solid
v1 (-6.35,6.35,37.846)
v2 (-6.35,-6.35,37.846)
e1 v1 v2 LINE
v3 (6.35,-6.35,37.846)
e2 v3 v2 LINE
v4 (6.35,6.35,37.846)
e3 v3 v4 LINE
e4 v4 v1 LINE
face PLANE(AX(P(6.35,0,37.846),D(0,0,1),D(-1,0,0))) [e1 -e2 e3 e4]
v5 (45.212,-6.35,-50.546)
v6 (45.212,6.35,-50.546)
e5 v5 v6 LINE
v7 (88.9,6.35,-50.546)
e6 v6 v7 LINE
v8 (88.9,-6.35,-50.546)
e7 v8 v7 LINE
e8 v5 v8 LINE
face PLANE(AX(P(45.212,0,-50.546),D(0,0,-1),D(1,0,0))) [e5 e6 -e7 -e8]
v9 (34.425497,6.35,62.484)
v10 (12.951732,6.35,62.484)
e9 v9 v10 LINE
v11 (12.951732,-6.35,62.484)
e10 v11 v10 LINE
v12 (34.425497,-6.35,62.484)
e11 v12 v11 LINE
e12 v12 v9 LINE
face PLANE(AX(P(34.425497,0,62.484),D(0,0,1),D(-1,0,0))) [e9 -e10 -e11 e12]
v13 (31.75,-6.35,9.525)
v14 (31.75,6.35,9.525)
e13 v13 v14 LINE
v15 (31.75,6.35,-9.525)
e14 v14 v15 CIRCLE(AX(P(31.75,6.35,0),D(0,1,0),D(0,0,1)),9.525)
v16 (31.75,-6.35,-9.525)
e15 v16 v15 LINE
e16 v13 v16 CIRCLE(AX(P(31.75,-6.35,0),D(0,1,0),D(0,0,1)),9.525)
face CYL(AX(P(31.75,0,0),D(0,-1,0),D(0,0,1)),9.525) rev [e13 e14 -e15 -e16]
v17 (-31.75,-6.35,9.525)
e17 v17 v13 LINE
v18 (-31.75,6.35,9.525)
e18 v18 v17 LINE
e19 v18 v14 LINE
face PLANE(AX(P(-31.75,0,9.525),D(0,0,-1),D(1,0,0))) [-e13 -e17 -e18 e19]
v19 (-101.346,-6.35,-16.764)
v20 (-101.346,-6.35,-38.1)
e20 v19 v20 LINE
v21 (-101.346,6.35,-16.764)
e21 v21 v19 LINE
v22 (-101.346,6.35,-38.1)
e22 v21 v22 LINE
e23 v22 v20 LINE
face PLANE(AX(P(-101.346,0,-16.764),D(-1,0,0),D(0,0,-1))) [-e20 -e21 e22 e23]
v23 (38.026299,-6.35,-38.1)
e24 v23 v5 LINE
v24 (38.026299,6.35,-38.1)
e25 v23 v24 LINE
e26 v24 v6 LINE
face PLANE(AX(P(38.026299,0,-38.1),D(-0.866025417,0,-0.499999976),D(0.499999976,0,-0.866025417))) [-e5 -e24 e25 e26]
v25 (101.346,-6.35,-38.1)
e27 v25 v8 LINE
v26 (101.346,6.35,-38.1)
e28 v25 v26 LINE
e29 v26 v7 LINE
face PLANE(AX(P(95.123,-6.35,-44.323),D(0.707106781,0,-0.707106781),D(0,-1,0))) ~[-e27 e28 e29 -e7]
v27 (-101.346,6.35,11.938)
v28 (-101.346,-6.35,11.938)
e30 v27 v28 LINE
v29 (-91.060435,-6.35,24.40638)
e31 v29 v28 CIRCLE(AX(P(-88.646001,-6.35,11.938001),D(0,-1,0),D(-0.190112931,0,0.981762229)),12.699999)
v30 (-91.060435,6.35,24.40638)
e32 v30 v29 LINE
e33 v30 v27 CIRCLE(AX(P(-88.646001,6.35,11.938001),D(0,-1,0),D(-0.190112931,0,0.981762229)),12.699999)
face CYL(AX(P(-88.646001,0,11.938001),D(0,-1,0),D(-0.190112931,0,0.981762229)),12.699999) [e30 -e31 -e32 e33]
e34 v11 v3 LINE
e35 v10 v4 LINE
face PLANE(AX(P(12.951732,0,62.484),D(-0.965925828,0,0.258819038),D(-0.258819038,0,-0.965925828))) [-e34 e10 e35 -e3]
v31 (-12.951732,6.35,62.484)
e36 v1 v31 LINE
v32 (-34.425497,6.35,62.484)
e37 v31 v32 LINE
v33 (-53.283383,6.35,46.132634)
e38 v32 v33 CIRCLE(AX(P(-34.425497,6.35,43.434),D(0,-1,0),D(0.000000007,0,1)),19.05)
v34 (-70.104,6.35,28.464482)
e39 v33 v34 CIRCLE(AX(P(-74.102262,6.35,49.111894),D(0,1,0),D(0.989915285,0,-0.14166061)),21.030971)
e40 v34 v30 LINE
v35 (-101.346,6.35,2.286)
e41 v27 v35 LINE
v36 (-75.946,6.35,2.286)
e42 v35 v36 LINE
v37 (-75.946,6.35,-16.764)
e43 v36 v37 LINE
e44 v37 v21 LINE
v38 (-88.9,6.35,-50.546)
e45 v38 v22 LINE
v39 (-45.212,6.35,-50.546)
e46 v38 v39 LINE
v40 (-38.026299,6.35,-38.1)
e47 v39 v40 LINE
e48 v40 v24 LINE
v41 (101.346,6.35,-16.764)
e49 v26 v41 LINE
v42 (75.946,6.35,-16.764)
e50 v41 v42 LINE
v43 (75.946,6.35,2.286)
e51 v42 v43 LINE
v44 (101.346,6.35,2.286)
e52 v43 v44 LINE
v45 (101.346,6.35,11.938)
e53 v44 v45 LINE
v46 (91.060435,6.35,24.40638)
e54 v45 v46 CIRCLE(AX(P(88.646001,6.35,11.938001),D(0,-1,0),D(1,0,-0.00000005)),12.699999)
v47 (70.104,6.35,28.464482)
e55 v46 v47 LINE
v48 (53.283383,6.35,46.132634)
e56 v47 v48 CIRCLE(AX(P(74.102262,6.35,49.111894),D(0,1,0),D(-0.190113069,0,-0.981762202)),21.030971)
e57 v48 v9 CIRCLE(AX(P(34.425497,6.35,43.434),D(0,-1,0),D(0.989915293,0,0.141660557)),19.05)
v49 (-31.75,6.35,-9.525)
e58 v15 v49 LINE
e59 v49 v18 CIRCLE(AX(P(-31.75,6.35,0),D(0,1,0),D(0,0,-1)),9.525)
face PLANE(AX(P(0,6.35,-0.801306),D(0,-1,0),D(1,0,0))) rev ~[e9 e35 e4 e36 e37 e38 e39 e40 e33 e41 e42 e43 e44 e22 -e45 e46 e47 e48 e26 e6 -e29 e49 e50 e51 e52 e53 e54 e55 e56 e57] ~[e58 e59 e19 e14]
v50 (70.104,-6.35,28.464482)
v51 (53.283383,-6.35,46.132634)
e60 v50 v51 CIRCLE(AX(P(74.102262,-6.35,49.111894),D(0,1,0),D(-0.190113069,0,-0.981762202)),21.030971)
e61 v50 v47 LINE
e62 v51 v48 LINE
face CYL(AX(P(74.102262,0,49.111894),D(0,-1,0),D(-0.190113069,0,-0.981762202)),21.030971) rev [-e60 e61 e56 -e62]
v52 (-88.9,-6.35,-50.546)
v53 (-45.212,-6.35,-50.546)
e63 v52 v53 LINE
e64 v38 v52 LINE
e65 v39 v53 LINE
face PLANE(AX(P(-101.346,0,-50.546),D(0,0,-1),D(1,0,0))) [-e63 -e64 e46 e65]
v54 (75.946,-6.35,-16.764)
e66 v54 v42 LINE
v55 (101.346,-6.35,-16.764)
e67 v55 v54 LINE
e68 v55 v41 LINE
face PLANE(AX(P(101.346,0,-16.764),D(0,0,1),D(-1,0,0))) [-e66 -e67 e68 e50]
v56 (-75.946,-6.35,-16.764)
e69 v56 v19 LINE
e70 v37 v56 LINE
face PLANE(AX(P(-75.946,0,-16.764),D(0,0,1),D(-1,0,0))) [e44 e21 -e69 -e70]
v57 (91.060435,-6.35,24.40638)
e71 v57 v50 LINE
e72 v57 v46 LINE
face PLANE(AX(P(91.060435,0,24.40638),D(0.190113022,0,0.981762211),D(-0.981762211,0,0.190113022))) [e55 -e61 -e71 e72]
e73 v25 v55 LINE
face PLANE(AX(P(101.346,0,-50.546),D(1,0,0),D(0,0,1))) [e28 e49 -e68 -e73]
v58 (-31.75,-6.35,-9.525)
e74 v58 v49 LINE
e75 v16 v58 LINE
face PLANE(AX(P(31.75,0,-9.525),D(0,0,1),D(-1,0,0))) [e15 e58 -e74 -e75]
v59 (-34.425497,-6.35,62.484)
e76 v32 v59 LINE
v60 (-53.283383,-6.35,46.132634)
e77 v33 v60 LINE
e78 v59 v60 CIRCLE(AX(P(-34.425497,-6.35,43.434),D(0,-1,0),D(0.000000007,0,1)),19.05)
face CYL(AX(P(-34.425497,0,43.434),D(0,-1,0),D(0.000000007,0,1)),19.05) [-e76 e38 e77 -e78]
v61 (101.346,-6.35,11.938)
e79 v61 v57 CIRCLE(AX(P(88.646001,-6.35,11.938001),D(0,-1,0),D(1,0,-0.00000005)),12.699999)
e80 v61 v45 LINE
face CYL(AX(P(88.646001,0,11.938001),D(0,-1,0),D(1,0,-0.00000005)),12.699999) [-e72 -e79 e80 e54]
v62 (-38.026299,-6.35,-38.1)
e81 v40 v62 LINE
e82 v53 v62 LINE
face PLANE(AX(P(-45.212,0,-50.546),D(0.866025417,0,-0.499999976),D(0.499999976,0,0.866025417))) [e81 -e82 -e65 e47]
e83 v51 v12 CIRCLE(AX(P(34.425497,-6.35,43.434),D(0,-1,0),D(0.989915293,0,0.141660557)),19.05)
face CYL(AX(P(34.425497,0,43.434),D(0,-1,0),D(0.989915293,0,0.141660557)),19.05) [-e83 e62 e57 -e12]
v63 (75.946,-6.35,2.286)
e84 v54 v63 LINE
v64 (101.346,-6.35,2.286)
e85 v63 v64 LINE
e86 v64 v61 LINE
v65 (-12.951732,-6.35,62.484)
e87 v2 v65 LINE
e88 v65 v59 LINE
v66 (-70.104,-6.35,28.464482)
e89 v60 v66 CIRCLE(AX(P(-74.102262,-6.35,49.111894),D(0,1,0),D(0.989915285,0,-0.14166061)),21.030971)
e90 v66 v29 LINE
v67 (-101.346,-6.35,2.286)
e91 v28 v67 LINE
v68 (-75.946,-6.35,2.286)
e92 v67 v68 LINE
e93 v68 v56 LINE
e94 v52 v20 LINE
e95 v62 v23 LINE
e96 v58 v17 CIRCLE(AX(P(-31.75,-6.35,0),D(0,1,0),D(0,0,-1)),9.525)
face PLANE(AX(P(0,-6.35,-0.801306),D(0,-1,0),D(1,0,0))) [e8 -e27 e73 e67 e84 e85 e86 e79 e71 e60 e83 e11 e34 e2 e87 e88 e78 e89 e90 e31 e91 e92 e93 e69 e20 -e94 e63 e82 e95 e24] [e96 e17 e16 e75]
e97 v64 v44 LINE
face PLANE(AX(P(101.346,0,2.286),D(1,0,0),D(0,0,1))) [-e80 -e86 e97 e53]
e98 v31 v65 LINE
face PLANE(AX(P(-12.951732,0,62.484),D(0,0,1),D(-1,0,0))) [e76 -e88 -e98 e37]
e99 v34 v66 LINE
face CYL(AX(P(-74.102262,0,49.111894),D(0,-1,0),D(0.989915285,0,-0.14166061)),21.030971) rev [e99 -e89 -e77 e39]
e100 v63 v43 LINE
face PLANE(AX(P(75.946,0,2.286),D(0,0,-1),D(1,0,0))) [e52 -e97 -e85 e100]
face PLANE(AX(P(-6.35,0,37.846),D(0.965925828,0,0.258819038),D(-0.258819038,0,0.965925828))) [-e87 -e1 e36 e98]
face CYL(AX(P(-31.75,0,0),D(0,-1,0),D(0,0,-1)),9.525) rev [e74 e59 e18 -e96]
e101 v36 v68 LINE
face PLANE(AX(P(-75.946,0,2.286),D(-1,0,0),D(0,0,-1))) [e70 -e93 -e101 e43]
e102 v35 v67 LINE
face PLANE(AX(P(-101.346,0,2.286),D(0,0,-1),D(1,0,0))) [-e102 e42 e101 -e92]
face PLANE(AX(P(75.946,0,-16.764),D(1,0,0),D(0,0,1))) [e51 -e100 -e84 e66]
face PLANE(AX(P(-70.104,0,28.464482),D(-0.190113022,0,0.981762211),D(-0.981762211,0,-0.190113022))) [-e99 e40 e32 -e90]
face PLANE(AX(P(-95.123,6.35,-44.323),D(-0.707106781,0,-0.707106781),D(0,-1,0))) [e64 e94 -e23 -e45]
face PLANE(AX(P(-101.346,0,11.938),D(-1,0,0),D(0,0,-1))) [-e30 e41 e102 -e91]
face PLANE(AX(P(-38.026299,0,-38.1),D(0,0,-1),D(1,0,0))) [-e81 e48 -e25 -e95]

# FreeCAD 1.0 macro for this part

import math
import FreeCAD as App
import Part
import Sketcher
Q = App.Units.Quantity


def edges_at(feature, points):
    """Names of the edges that pass closest to the given points."""
    edges = feature.Shape.Edges
    near = lambda p: min(range(len(edges)), key=lambda i: edges[i].distToShape(Part.Vertex(*p))[0])
    return sorted({f"Edge{near(p) + 1}" for p in points})

doc = App.newDocument("Part")
body = doc.addObject("PartDesign::Body", "Body")

# Sketch on XZ plane
sketch1 = body.newObject("Sketcher::SketchObject", "Sketch")
sketch1.AttachmentSupport = (doc.getObject("XZ_Plane"), [""])
sketch1.MapMode = "FlatFace"
sketch1.addGeometry(Part.LineSegment(App.Vector(6.35, 37.846, 0), App.Vector(-6.35, 37.846, 0)), False)
sketch1.addGeometry(Part.LineSegment(App.Vector(-6.35, 37.846, 0), App.Vector(-12.951732, 62.484, 0)), False)
sketch1.addGeometry(Part.LineSegment(App.Vector(-12.951732, 62.484, 0), App.Vector(-34.425497, 62.484, 0)), False)
sketch1.addGeometry(Part.ArcOfCircle(Part.Circle(App.Vector(-34.425497, 43.434, 0), App.Vector(0, 0, 1), 19.05), math.radians(90), math.radians(171.856053)), False)
sketch1.addGeometry(Part.ArcOfCircle(Part.Circle(App.Vector(-74.102262, 49.111894, 0), App.Vector(0, 0, 1), 21.030971), math.radians(-79.040617), math.radians(-8.14395)), False)
sketch1.addGeometry(Part.LineSegment(App.Vector(-70.104, 28.464482, 0), App.Vector(-91.060435, 24.40638, 0)), False)
sketch1.addGeometry(Part.ArcOfCircle(Part.Circle(App.Vector(-88.646001, 11.938001, 0), App.Vector(0, 0, 1), 12.699999), math.radians(100.959375), math.radians(180.000003)), False)
sketch1.addGeometry(Part.LineSegment(App.Vector(-101.346, 11.938, 0), App.Vector(-101.346, 2.286, 0)), False)
sketch1.addGeometry(Part.LineSegment(App.Vector(-101.346, 2.286, 0), App.Vector(-75.946, 2.286, 0)), False)
sketch1.addGeometry(Part.LineSegment(App.Vector(-75.946, 2.286, 0), App.Vector(-75.946, -16.764, 0)), False)
sketch1.addGeometry(Part.LineSegment(App.Vector(-75.946, -16.764, 0), App.Vector(-101.346, -16.764, 0)), False)
sketch1.addGeometry(Part.LineSegment(App.Vector(-101.346, -16.764, 0), App.Vector(-101.346, -50.546, 0)), False)
sketch1.addGeometry(Part.LineSegment(App.Vector(-101.346, -50.546, 0), App.Vector(-45.212, -50.546, 0)), False)
sketch1.addGeometry(Part.LineSegment(App.Vector(-45.212, -50.546, 0), App.Vector(-38.026299, -38.1, 0)), False)
sketch1.addGeometry(Part.LineSegment(App.Vector(-38.026299, -38.1, 0), App.Vector(38.026299, -38.1, 0)), False)
sketch1.addGeometry(Part.LineSegment(App.Vector(38.026299, -38.1, 0), App.Vector(45.212, -50.546, 0)), False)
sketch1.addGeometry(Part.LineSegment(App.Vector(45.212, -50.546, 0), App.Vector(101.346, -50.546, 0)), False)
sketch1.addGeometry(Part.LineSegment(App.Vector(101.346, -50.546, 0), App.Vector(101.346, -16.764, 0)), False)
sketch1.addGeometry(Part.LineSegment(App.Vector(101.346, -16.764, 0), App.Vector(75.946, -16.764, 0)), False)
sketch1.addGeometry(Part.LineSegment(App.Vector(75.946, -16.764, 0), App.Vector(75.946, 2.286, 0)), False)
sketch1.addGeometry(Part.LineSegment(App.Vector(75.946, 2.286, 0), App.Vector(101.346, 2.286, 0)), False)
sketch1.addGeometry(Part.LineSegment(App.Vector(101.346, 2.286, 0), App.Vector(101.346, 11.938, 0)), False)
sketch1.addGeometry(Part.ArcOfCircle(Part.Circle(App.Vector(88.646001, 11.938001, 0), App.Vector(0, 0, 1), 12.699999), math.radians(-0.000003), math.radians(79.040625)), False)
sketch1.addGeometry(Part.LineSegment(App.Vector(91.060435, 24.40638, 0), App.Vector(70.104, 28.464482, 0)), False)
sketch1.addGeometry(Part.ArcOfCircle(Part.Circle(App.Vector(74.102262, 49.111894, 0), App.Vector(0, 0, 1), 21.030971), math.radians(-171.85605), math.radians(-100.959383)), False)
sketch1.addGeometry(Part.ArcOfCircle(Part.Circle(App.Vector(34.425497, 43.434, 0), App.Vector(0, 0, 1), 19.05), math.radians(8.143947), math.radians(90)), False)
sketch1.addGeometry(Part.LineSegment(App.Vector(34.425497, 62.484, 0), App.Vector(12.951732, 62.484, 0)), False)
sketch1.addGeometry(Part.LineSegment(App.Vector(12.951732, 62.484, 0), App.Vector(6.35, 37.846, 0)), False)
sketch1.addGeometry(Part.ArcOfCircle(Part.Circle(App.Vector(-31.75, 0, 0), App.Vector(0, 0, 1), 9.525), math.radians(90), math.radians(270)), False)
sketch1.addGeometry(Part.LineSegment(App.Vector(-31.75, 9.525, 0), App.Vector(31.75, 9.525, 0)), False)
sketch1.addGeometry(Part.ArcOfCircle(Part.Circle(App.Vector(31.75, 0, 0), App.Vector(0, 0, 1), 9.525), math.radians(-90), math.radians(90)), False)
sketch1.addGeometry(Part.LineSegment(App.Vector(31.75, -9.525, 0), App.Vector(-31.75, -9.525, 0)), False)
sketch1.addConstraint(Sketcher.Constraint("Coincident", 0, 2, 1, 1))
sketch1.addConstraint(Sketcher.Constraint("Coincident", 1, 2, 2, 1))
sketch1.addConstraint(Sketcher.Constraint("Tangent", 2, 2, 3, 1))
sketch1.addConstraint(Sketcher.Constraint("Tangent", 3, 2, 4, 2))
sketch1.addConstraint(Sketcher.Constraint("Tangent", 4, 1, 5, 1))
sketch1.addConstraint(Sketcher.Constraint("Tangent", 5, 2, 6, 1))
sketch1.addConstraint(Sketcher.Constraint("Tangent", 6, 2, 7, 1))
sketch1.addConstraint(Sketcher.Constraint("Coincident", 7, 2, 8, 1))
sketch1.addConstraint(Sketcher.Constraint("Coincident", 8, 2, 9, 1))
sketch1.addConstraint(Sketcher.Constraint("Coincident", 9, 2, 10, 1))
sketch1.addConstraint(Sketcher.Constraint("Coincident", 10, 2, 11, 1))
sketch1.addConstraint(Sketcher.Constraint("Coincident", 11, 2, 12, 1))
sketch1.addConstraint(Sketcher.Constraint("Coincident", 12, 2, 13, 1))
sketch1.addConstraint(Sketcher.Constraint("Coincident", 13, 2, 14, 1))
sketch1.addConstraint(Sketcher.Constraint("Coincident", 14, 2, 15, 1))
sketch1.addConstraint(Sketcher.Constraint("Coincident", 15, 2, 16, 1))
sketch1.addConstraint(Sketcher.Constraint("Coincident", 16, 2, 17, 1))
sketch1.addConstraint(Sketcher.Constraint("Coincident", 17, 2, 18, 1))
sketch1.addConstraint(Sketcher.Constraint("Coincident", 18, 2, 19, 1))
sketch1.addConstraint(Sketcher.Constraint("Coincident", 19, 2, 20, 1))
sketch1.addConstraint(Sketcher.Constraint("Coincident", 20, 2, 21, 1))
sketch1.addConstraint(Sketcher.Constraint("Tangent", 21, 2, 22, 1))
sketch1.addConstraint(Sketcher.Constraint("Tangent", 22, 2, 23, 1))
sketch1.addConstraint(Sketcher.Constraint("Tangent", 23, 2, 24, 2))
sketch1.addConstraint(Sketcher.Constraint("Tangent", 24, 1, 25, 1))
sketch1.addConstraint(Sketcher.Constraint("Tangent", 25, 2, 26, 1))
sketch1.addConstraint(Sketcher.Constraint("Coincident", 26, 2, 27, 1))
sketch1.addConstraint(Sketcher.Constraint("Coincident", 27, 2, 0, 1))
sketch1.addConstraint(Sketcher.Constraint("Tangent", 28, 1, 29, 1))
sketch1.addConstraint(Sketcher.Constraint("Tangent", 29, 2, 30, 2))
sketch1.addConstraint(Sketcher.Constraint("Tangent", 30, 1, 31, 1))
sketch1.addConstraint(Sketcher.Constraint("Tangent", 31, 2, 28, 2))
sketch1.addConstraint(Sketcher.Constraint("Horizontal", 0))
sketch1.addConstraint(Sketcher.Constraint("Horizontal", 2))
sketch1.addConstraint(Sketcher.Constraint("Vertical", 7))
sketch1.addConstraint(Sketcher.Constraint("Horizontal", 8))
sketch1.addConstraint(Sketcher.Constraint("Vertical", 9))
sketch1.addConstraint(Sketcher.Constraint("Horizontal", 10))
sketch1.addConstraint(Sketcher.Constraint("Vertical", 11))
sketch1.addConstraint(Sketcher.Constraint("Horizontal", 12))
sketch1.addConstraint(Sketcher.Constraint("Horizontal", 14))
sketch1.addConstraint(Sketcher.Constraint("Horizontal", 16))
sketch1.addConstraint(Sketcher.Constraint("Vertical", 17))
sketch1.addConstraint(Sketcher.Constraint("Horizontal", 18))
sketch1.addConstraint(Sketcher.Constraint("Vertical", 19))
sketch1.addConstraint(Sketcher.Constraint("Horizontal", 20))
sketch1.addConstraint(Sketcher.Constraint("Vertical", 21))
sketch1.addConstraint(Sketcher.Constraint("Horizontal", 26))
sketch1.addConstraint(Sketcher.Constraint("Horizontal", 29))
sketch1.addConstraint(Sketcher.Constraint("Horizontal", 31))
sketch1.addConstraint(Sketcher.Constraint("Equal", 6, 22))
sketch1.addConstraint(Sketcher.Constraint("Equal", 4, 24))
sketch1.addConstraint(Sketcher.Constraint("Equal", 3, 25))
sketch1.addConstraint(Sketcher.Constraint("Symmetric", 28, 3, 30, 3, -1, 1))
sketch1.addConstraint(Sketcher.Constraint("Symmetric", 6, 3, 22, 3, -2))
sketch1.addConstraint(Sketcher.Constraint("Symmetric", 4, 3, 24, 3, -2))
sketch1.addConstraint(Sketcher.Constraint("Symmetric", 12, 2, 15, 2, -2))
sketch1.addConstraint(Sketcher.Constraint("Symmetric", 10, 2, 17, 2, -2))
sketch1.addConstraint(Sketcher.Constraint("Symmetric", 8, 2, 19, 2, -2))
sketch1.addConstraint(Sketcher.Constraint("Symmetric", 1, 2, 26, 2, -2))
sketch1.addConstraint(Sketcher.Constraint("Vertical", 7, 2, 10, 2))
sketch1.addConstraint(Sketcher.Constraint("Equal", 13, 15))
sketch1.addConstraint(Sketcher.Constraint("Equal", 1, 27))
sketch1.addConstraint(Sketcher.Constraint("Radius", 6, Q("0.5 in")))
sketch1.addConstraint(Sketcher.Constraint("DistanceX", 8, 1, 8, 2, Q("1 in")))
sketch1.addConstraint(Sketcher.Constraint("Radius", 3, Q("0.75 in")))
sketch1.addConstraint(Sketcher.Constraint("DistanceX", 0, 2, 0, 1, Q("0.5 in")))
sketch1.addConstraint(Sketcher.Constraint("DistanceX", 29, 1, 29, 2, Q("2.5 in")))
sketch1.addConstraint(Sketcher.Constraint("Angle", 1, Q("105 deg")))
sketch1.addConstraint(Sketcher.Constraint("Angle", 13, Q("60.000002 deg")))
sketch1.addConstraint(Sketcher.Constraint("Radius", 28, Q("0.375 in")))
sketch1.addConstraint(Sketcher.Constraint("DistanceX", 12, 1, 12, 2, Q("2.21 in")))
sketch1.addConstraint(Sketcher.Constraint("DistanceY", 7, 2, 7, 1, Q("0.38 in")))
sketch1.addConstraint(Sketcher.Constraint("DistanceY", 9, 2, 9, 1, Q("0.75 in")))
sketch1.addConstraint(Sketcher.Constraint("DistanceY", 11, 2, 11, 1, Q("1.33 in")))
sketch1.addConstraint(Sketcher.Constraint("DistanceY", 13, 2, -1, 1, Q("1.5 in")))
sketch1.addConstraint(Sketcher.Constraint("DistanceY", -1, 1, 3, 3, Q("1.71 in")))
sketch1.addConstraint(Sketcher.Constraint("DistanceX", 6, 3, -1, 1, Q("3.49 in")))
sketch1.addConstraint(Sketcher.Constraint("DistanceY", -1, 1, 6, 3, Q("0.47 in")))
sketch1.addConstraint(Sketcher.Constraint("DistanceY", -1, 1, 0, 2, Q("1.49 in")))
sketch1.addConstraint(Sketcher.Constraint("DistanceX", 4, 1, -1, 1, Q("2.76 in")))
sketch1.addConstraint(Sketcher.Constraint("Radius", 4, 21.030971))
sketch1.addConstraint(Sketcher.Constraint("DistanceX", 3, 3, 22, 3, 123.071498))
pad1 = body.newObject("PartDesign::Pad", "Pad")
pad1.Profile = sketch1
pad1.Length = Q("0.5 in")
pad1.Midplane = True
doc.recompute()

chamfer = body.newObject("PartDesign::Chamfer", "Chamfer")
chamfer.Base = (pad1, edges_at(pad1, [(-101.346, 0, -50.546), (101.346, 0, -50.546)]))
chamfer.Size = Q("0.49 in")

doc.recompute()
